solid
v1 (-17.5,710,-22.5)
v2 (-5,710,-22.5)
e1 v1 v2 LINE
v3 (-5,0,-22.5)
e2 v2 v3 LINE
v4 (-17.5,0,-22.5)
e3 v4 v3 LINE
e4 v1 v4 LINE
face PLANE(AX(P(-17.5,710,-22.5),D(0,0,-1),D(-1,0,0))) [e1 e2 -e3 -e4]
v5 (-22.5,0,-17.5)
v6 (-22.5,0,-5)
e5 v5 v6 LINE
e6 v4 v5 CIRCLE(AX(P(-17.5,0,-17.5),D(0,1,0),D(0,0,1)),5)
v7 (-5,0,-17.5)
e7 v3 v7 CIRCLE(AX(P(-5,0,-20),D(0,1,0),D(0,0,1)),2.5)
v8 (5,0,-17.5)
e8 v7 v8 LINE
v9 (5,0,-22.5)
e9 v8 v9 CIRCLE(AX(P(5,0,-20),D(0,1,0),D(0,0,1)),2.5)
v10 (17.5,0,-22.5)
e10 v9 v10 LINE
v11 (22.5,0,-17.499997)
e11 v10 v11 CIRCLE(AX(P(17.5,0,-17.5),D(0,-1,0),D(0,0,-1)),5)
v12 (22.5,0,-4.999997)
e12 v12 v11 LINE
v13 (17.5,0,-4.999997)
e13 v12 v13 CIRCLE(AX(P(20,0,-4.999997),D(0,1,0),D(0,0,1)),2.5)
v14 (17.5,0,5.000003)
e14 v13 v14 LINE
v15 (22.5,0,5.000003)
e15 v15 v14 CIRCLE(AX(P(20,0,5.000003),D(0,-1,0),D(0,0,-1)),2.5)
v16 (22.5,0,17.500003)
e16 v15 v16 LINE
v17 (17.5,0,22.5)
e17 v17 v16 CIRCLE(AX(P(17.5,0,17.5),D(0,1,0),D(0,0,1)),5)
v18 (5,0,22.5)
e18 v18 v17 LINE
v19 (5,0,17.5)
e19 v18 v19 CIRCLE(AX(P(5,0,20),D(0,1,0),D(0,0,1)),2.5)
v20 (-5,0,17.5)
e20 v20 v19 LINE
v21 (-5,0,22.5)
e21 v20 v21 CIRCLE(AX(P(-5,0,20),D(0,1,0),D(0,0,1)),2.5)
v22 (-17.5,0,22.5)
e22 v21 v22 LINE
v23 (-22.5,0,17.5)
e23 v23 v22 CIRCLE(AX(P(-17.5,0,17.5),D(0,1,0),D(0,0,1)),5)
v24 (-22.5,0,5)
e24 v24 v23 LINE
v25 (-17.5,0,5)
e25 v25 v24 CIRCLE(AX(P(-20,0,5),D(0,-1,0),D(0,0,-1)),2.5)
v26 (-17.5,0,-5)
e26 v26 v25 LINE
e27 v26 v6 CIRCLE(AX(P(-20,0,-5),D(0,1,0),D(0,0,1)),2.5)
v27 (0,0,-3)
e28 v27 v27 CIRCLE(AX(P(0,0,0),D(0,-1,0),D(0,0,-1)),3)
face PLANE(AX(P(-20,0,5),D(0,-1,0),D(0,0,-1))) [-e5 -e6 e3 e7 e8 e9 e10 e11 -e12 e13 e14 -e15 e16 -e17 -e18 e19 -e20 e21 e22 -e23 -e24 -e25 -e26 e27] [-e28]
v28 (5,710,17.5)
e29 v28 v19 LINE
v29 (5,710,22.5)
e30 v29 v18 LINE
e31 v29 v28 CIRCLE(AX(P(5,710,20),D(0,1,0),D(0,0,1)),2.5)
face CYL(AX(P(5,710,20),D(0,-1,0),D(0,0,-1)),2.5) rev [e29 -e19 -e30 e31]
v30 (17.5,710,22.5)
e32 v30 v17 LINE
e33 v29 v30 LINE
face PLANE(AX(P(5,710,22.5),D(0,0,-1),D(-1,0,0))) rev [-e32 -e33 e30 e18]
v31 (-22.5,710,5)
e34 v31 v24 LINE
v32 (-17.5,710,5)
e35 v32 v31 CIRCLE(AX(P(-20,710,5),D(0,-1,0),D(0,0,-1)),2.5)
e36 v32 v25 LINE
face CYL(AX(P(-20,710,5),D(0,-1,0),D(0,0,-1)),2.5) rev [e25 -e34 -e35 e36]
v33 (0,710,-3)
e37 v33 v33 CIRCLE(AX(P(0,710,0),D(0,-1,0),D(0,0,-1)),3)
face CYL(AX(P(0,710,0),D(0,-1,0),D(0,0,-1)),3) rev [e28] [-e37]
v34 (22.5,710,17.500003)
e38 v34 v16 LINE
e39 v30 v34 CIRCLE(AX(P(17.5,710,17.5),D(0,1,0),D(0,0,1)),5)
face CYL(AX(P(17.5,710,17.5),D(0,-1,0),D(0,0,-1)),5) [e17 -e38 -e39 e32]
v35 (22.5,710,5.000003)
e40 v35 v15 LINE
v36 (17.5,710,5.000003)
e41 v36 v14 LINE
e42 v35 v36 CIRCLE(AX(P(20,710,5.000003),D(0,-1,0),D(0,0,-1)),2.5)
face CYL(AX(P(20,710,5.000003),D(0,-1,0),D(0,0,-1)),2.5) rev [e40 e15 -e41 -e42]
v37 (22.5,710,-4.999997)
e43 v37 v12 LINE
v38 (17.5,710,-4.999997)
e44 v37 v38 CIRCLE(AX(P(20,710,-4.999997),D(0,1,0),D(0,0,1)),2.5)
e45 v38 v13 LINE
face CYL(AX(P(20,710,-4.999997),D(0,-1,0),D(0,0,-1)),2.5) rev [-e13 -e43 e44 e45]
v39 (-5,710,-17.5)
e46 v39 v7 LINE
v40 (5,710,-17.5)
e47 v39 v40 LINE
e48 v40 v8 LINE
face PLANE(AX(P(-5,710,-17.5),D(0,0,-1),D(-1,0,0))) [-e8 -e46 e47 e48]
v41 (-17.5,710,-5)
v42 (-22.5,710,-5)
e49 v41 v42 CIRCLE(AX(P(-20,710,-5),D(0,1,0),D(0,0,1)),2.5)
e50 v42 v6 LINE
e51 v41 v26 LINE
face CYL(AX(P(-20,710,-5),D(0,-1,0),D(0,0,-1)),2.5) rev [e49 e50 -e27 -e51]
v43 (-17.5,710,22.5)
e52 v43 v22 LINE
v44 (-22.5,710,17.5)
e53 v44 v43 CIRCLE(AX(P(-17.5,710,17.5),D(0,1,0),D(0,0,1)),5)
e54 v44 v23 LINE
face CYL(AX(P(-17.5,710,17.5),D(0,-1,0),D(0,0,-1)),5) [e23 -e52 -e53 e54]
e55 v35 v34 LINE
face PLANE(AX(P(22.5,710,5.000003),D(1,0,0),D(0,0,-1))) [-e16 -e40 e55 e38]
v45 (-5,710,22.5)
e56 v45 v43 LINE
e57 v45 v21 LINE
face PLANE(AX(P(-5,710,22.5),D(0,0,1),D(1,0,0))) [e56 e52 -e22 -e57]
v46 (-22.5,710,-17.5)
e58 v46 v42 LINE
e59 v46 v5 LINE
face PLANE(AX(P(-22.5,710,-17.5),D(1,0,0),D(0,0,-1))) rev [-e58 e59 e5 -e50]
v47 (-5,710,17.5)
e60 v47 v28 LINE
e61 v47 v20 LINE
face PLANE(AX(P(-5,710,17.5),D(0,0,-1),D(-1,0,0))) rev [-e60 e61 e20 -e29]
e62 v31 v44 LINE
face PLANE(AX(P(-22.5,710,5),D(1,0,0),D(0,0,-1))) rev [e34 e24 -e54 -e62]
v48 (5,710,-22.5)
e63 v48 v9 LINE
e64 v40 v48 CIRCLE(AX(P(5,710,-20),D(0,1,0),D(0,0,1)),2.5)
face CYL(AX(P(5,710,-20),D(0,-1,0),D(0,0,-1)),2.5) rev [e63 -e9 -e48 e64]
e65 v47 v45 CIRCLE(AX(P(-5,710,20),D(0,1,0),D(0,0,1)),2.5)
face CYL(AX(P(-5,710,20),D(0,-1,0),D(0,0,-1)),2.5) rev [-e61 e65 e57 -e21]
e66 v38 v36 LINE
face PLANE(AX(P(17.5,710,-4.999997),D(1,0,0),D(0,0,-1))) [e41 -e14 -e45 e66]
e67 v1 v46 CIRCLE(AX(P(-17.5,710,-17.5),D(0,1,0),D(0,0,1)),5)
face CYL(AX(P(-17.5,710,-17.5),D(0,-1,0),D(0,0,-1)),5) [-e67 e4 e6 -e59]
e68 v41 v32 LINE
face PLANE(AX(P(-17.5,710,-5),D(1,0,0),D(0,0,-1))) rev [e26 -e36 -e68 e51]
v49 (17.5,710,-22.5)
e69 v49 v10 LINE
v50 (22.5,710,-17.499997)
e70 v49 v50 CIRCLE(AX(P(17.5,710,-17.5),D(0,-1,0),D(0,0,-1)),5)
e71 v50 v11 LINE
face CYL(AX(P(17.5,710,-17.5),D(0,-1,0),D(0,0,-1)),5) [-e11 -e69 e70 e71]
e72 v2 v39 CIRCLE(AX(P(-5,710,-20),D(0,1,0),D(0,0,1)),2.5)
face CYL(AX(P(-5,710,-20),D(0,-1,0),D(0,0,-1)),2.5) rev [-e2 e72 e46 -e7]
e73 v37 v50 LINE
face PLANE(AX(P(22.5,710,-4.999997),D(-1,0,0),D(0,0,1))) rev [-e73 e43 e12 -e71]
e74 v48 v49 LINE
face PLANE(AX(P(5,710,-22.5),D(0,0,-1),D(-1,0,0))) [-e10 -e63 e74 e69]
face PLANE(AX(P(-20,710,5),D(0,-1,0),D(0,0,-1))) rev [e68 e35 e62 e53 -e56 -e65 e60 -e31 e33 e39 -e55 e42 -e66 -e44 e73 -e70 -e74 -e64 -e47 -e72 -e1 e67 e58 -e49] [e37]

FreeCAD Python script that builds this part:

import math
import FreeCAD as App
import Part
import Sketcher
from FreeCAD import Vector

doc = App.newDocument("Part")
body = doc.addObject("PartDesign::Body", "Body")

# Sketch on XZ plane
sketch1 = body.newObject("Sketcher::SketchObject", "Sketch")
sketch1.AttachmentSupport = (doc.getObject("XZ_Plane"), [""])
sketch1.MapMode = "FlatFace"
sketch1.addGeometry([
    Part.LineSegment(Vector(-5, -22.5, 0), Vector(-17.5, -22.5, 0)),  # 0
    Part.ArcOfCircle(Part.Circle(Vector(-17.5, -17.5, 0), Vector(0, 0, 1), 5), math.radians(180), math.radians(270)),  # 1
    Part.LineSegment(Vector(-22.5, -17.5, 0), Vector(-22.5, -5, 0)),  # 2
    Part.ArcOfCircle(Part.Circle(Vector(-20, -5, 0), Vector(0, 0, 1), 2.5), math.radians(180), math.radians(360)),  # 3
    Part.LineSegment(Vector(-17.5, -5, 0), Vector(-17.5, 5, 0)),  # 4
    Part.ArcOfCircle(Part.Circle(Vector(-20, 5, 0), Vector(0, 0, 1), 2.5), math.radians(0), math.radians(180)),  # 5
    Part.LineSegment(Vector(-22.5, 5, 0), Vector(-22.5, 17.5, 0)),  # 6
    Part.ArcOfCircle(Part.Circle(Vector(-17.5, 17.5, 0), Vector(0, 0, 1), 5), math.radians(90), math.radians(180)),  # 7
    Part.LineSegment(Vector(-17.5, 22.5, 0), Vector(-5, 22.5, 0)),  # 8
    Part.ArcOfCircle(Part.Circle(Vector(-5, 20, 0), Vector(0, 0, 1), 2.5), math.radians(90), math.radians(270)),  # 9
    Part.LineSegment(Vector(-5, 17.5, 0), Vector(5, 17.5, 0)),  # 10
    Part.ArcOfCircle(Part.Circle(Vector(5, 20, 0), Vector(0, 0, 1), 2.5), math.radians(-90), math.radians(90)),  # 11
    Part.LineSegment(Vector(5, 22.5, 0), Vector(17.5, 22.5, 0)),  # 12
    Part.ArcOfCircle(Part.Circle(Vector(17.5, 17.5, 0), Vector(0, 0, 1), 5), math.radians(0), math.radians(90)),  # 13
    Part.LineSegment(Vector(22.5, 17.5, 0), Vector(22.5, 5, 0)),  # 14
    Part.ArcOfCircle(Part.Circle(Vector(20, 5, 0), Vector(0, 0, 1), 2.5), math.radians(0), math.radians(180)),  # 15
    Part.LineSegment(Vector(17.5, 5, 0), Vector(17.5, -5, 0)),  # 16
    Part.ArcOfCircle(Part.Circle(Vector(20, -5, 0), Vector(0, 0, 1), 2.5), math.radians(180), math.radians(360)),  # 17
    Part.LineSegment(Vector(22.5, -5, 0), Vector(22.5, -17.5, 0)),  # 18
    Part.ArcOfCircle(Part.Circle(Vector(17.5, -17.5, 0), Vector(0, 0, 1), 5), math.radians(-90), math.radians(0)),  # 19
    Part.LineSegment(Vector(17.5, -22.5, 0), Vector(5, -22.5, 0)),  # 20
    Part.ArcOfCircle(Part.Circle(Vector(5, -20, 0), Vector(0, 0, 1), 2.5), math.radians(-90), math.radians(90)),  # 21
    Part.LineSegment(Vector(5, -17.5, 0), Vector(-5, -17.5, 0)),  # 22
    Part.ArcOfCircle(Part.Circle(Vector(-5, -20, 0), Vector(0, 0, 1), 2.5), math.radians(90), math.radians(270)),  # 23
], False)
sketch1.addConstraint([
    Sketcher.Constraint("Tangent", 0, 2, 1, 2),
    Sketcher.Constraint("Tangent", 1, 1, 2, 1),
    Sketcher.Constraint("Tangent", 2, 2, 3, 1),
    Sketcher.Constraint("Tangent", 3, 2, 4, 1),
    Sketcher.Constraint("Tangent", 4, 2, 5, 1),
    Sketcher.Constraint("Tangent", 5, 2, 6, 1),
    Sketcher.Constraint("Tangent", 6, 2, 7, 2),
    Sketcher.Constraint("Tangent", 7, 1, 8, 1),
    Sketcher.Constraint("Tangent", 8, 2, 9, 1),
    Sketcher.Constraint("Tangent", 9, 2, 10, 1),
    Sketcher.Constraint("Tangent", 10, 2, 11, 1),
    Sketcher.Constraint("Tangent", 11, 2, 12, 1),
    Sketcher.Constraint("Tangent", 12, 2, 13, 2),
    Sketcher.Constraint("Tangent", 13, 1, 14, 1),
    Sketcher.Constraint("Tangent", 14, 2, 15, 1),
    Sketcher.Constraint("Tangent", 15, 2, 16, 1),
    Sketcher.Constraint("Tangent", 16, 2, 17, 1),
    Sketcher.Constraint("Tangent", 17, 2, 18, 1),
    Sketcher.Constraint("Tangent", 18, 2, 19, 2),
    Sketcher.Constraint("Tangent", 19, 1, 20, 1),
    Sketcher.Constraint("Tangent", 20, 2, 21, 1),
    Sketcher.Constraint("Tangent", 21, 2, 22, 1),
    Sketcher.Constraint("Tangent", 22, 2, 23, 1),
    Sketcher.Constraint("Tangent", 23, 2, 0, 1),
    Sketcher.Constraint("Horizontal", 0),
    Sketcher.Constraint("Vertical", 2),
    Sketcher.Constraint("Vertical", 4),
    Sketcher.Constraint("Vertical", 6),
    Sketcher.Constraint("Horizontal", 8),
    Sketcher.Constraint("Horizontal", 10),
    Sketcher.Constraint("Horizontal", 12),
    Sketcher.Constraint("Vertical", 14),
    Sketcher.Constraint("Vertical", 16),
    Sketcher.Constraint("Vertical", 18),
    Sketcher.Constraint("Horizontal", 20),
    Sketcher.Constraint("Horizontal", 22),
    Sketcher.Constraint("Equal", 3, 5),
    Sketcher.Constraint("Equal", 1, 7),
    Sketcher.Constraint("Equal", 5, 9),
    Sketcher.Constraint("Equal", 9, 11),
    Sketcher.Constraint("Equal", 7, 13),
    Sketcher.Constraint("Equal", 11, 15),
    Sketcher.Constraint("Equal", 15, 17),
    Sketcher.Constraint("Equal", 13, 19),
    Sketcher.Constraint("Equal", 17, 21),
    Sketcher.Constraint("Equal", 21, 23),
    Sketcher.Constraint("Symmetric", 1, 3, 13, 3, -1, 1),
    Sketcher.Constraint("Horizontal", 6, 2, 9, 2),
    Sketcher.Constraint("Vertical", 11, 3, 21, 3),
    Sketcher.Constraint("Vertical", 9, 3, 23, 3),
    Sketcher.Constraint("Equal", 8, 12),
    Sketcher.Constraint("Equal", 20, 2),
    Sketcher.Constraint("Equal", 22, 4),
    Sketcher.Constraint("Equal", 2, 6),
    Sketcher.Constraint("Equal", 6, 14),
    Sketcher.Constraint("Equal", 4, 16),
    Sketcher.Constraint("Radius", 1, 5.0),
    Sketcher.Constraint("DistanceX", 10, 1, 10, 2, 10.0),
    Sketcher.Constraint("DistanceX", 0, 2, 0, 1, 12.5),
])
pad1 = body.newObject("PartDesign::Pad", "Pad")
pad1.Profile = sketch1
pad1.Length = 710
pad1.Reversed = True

# Sketch on XZ plane
sketch2 = body.newObject("Sketcher::SketchObject", "Sketch001")
sketch2.AttachmentSupport = (doc.getObject("XZ_Plane"), [""])
sketch2.MapMode = "FlatFace"
sketch2.addGeometry(Part.Circle(Vector(0, 0, 0), Vector(0, 0, 1), 3), False)
sketch2.addConstraint([
    Sketcher.Constraint("Coincident", 0, 3, -1, 1),
    Sketcher.Constraint("Diameter", 0, 6.0),
])
pocket1 = body.newObject("PartDesign::Pocket", "Pocket")
pocket1.Profile = sketch2
pocket1.Type = "ThroughAll"

doc.recompute()
